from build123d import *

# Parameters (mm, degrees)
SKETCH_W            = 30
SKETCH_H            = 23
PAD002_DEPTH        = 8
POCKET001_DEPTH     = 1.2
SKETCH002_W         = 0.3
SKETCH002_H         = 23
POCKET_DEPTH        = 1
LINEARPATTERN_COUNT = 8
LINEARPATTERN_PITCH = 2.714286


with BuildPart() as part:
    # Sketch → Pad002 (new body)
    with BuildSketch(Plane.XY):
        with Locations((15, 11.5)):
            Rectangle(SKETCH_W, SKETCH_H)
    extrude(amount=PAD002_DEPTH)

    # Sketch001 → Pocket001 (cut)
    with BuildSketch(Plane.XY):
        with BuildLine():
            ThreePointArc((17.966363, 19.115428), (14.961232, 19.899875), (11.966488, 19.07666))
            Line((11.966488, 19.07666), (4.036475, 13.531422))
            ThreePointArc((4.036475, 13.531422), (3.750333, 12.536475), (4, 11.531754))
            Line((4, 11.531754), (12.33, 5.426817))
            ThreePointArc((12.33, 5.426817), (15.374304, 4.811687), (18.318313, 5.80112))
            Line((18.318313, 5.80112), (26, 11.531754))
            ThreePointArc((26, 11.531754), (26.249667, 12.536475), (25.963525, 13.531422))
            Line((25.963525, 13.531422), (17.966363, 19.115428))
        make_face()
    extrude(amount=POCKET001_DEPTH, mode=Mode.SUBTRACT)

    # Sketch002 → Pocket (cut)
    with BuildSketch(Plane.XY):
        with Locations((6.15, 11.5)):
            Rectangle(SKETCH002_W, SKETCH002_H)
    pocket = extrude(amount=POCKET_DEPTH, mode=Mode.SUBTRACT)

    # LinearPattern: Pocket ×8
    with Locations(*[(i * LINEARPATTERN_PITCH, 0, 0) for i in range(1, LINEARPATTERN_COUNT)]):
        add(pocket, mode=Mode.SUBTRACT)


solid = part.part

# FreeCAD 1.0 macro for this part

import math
import FreeCAD as App
import Part
import Sketcher
from FreeCAD import Vector
Q = App.Units.Quantity

doc = App.newDocument("Part")
body = doc.addObject("PartDesign::Body", "Body")

sketch1 = body.newObject("Sketcher::SketchObject", "Sketch")
sketch1.AttachmentSupport = (doc.getObject("XY_Plane"), [""])
sketch1.MapMode = "FlatFace"
sketch1.addGeometry([
    Part.LineSegment(Vector(0, 23, 0), Vector(0, 0, 0)),
    Part.LineSegment(Vector(0, 0, 0), Vector(30, 0, 0)),
    Part.LineSegment(Vector(30, 0, 0), Vector(30, 23, 0)),
    Part.LineSegment(Vector(30, 23, 0), Vector(0, 23, 0)),
], False)
sketch1.addConstraint([
    Sketcher.Constraint("Coincident", 0, 2, 1, 1),
    Sketcher.Constraint("Coincident", 1, 2, 2, 1),
    Sketcher.Constraint("Coincident", 2, 2, 3, 1),
    Sketcher.Constraint("Coincident", 3, 2, 0, 1),
    Sketcher.Constraint("Vertical", 0),
    Sketcher.Constraint("Horizontal", 1),
    Sketcher.Constraint("Vertical", 2),
    Sketcher.Constraint("Horizontal", 3),
    Sketcher.Constraint("Coincident", 0, 2, -1, 1),
    Sketcher.Constraint("DistanceX", 1, 1, 1, 2, Q("30 mm")),
    Sketcher.Constraint("DistanceY", 0, 2, 0, 1, Q("23 mm")),
])
pad1 = body.newObject("PartDesign::Pad", "Pad")
pad1.Profile = sketch1
pad1.Length = 8

sketch2 = body.newObject("Sketcher::SketchObject", "Sketch001")
sketch2.AttachmentSupport = (doc.getObject("XY_Plane"), [""])
sketch2.MapMode = "FlatFace"
sketch2.addGeometry([
    Part.ArcOfCircle(Part.Circle(Vector(15, 13.900001, 0), Vector(0, 0, 1), 5.999999), math.radians(60.370204), math.radians(120.370216)),
    Part.LineSegment(Vector(11.966488, 19.07666, 0), Vector(4.036475, 13.531422, 0)),
    Part.ArcOfCircle(Part.Circle(Vector(5.750002, 12.5, 0), Vector(0, 0, 1), 2.000002), math.radians(148.955033), math.radians(208.954988)),
    Part.LineSegment(Vector(4, 11.531754, 0), Vector(12.33, 5.426817, 0)),
    Part.ArcOfCircle(Part.Circle(Vector(15, 10.800002, 0), Vector(0, 0, 1), 6.000001), math.radians(-116.423337), math.radians(-56.423357)),
    Part.LineSegment(Vector(18.318313, 5.80112, 0), Vector(26, 11.531754, 0)),
    Part.ArcOfCircle(Part.Circle(Vector(24.249998, 12.5, 0), Vector(0, 0, 1), 2.000002), math.radians(-28.954988), math.radians(31.044967)),
    Part.LineSegment(Vector(25.963525, 13.531422, 0), Vector(17.966363, 19.115428, 0)),
], False)
sketch2.addConstraint([
    Sketcher.Constraint("Coincident", 0, 2, 1, 1),
    Sketcher.Constraint("Coincident", 1, 2, 2, 1),
    Sketcher.Constraint("Coincident", 2, 2, 3, 1),
    Sketcher.Constraint("Coincident", 3, 2, 4, 1),
    Sketcher.Constraint("Coincident", 4, 2, 5, 1),
    Sketcher.Constraint("Coincident", 5, 2, 6, 1),
    Sketcher.Constraint("Coincident", 6, 2, 7, 1),
    Sketcher.Constraint("Coincident", 7, 2, 0, 1),
    Sketcher.Constraint("Equal", 2, 6),
    Sketcher.Constraint("Horizontal", 2, 3, 6, 3),
    Sketcher.Constraint("Horizontal", 2, 2, 5, 2),
    Sketcher.Constraint("Horizontal", 1, 2, 6, 2),
    Sketcher.Constraint("Vertical", 0, 3, 4, 3),
    Sketcher.Constraint("Radius", 0, Q("5.999999 mm")),
    Sketcher.Constraint("Radius", 2, Q("2.000002 mm")),
    Sketcher.Constraint("Radius", 4, Q("6.000001 mm")),
    Sketcher.Constraint("DistanceX", -1, 1, 0, 3, Q("15 mm")),
    Sketcher.Constraint("DistanceX", -1, 1, 2, 2, Q("4 mm")),
    Sketcher.Constraint("DistanceX", -1, 1, 5, 2, Q("26 mm")),
    Sketcher.Constraint("DistanceY", -1, 1, 0, 3, Q("13.900001 mm")),
    Sketcher.Constraint("DistanceY", -1, 1, 2, 3, Q("12.5 mm")),
    Sketcher.Constraint("DistanceY", -1, 1, 4, 3, Q("10.800002 mm")),
    Sketcher.Constraint("DistanceX", -1, 1, 3, 2, Q("12.33 mm")),
    Sketcher.Constraint("DistanceX", 2, 3, 4, 3, Q("9.249998 mm")),
    Sketcher.Constraint("DistanceY", 4, 2, 6, 2, Q("7.730302 mm")),
    Sketcher.Constraint("Distance", 5, Q("9.583761 mm")),
    Sketcher.Constraint("DistanceX", -1, 1, 0, 2, Q("11.966488 mm")),
    Sketcher.Constraint("DistanceY", -1, 1, 7, 2, Q("19.115428 mm")),
])
pocket1 = body.newObject("PartDesign::Pocket", "Pocket")
pocket1.Profile = sketch2
pocket1.Length = 1.2
pocket1.Reversed = True

sketch3 = body.newObject("Sketcher::SketchObject", "Sketch002")
sketch3.AttachmentSupport = (doc.getObject("XY_Plane"), [""])
sketch3.MapMode = "FlatFace"
sketch3.addGeometry([
    Part.LineSegment(Vector(6, 23, 0), Vector(6, 0, 0)),
    Part.LineSegment(Vector(6, 0, 0), Vector(6.3, 0, 0)),
    Part.LineSegment(Vector(6.3, 0, 0), Vector(6.3, 23, 0)),
    Part.LineSegment(Vector(6.3, 23, 0), Vector(6, 23, 0)),
], False)
sketch3.addConstraint([
    Sketcher.Constraint("Coincident", 0, 2, 1, 1),
    Sketcher.Constraint("Coincident", 1, 2, 2, 1),
    Sketcher.Constraint("Coincident", 2, 2, 3, 1),
    Sketcher.Constraint("Coincident", 3, 2, 0, 1),
    Sketcher.Constraint("Vertical", 0),
    Sketcher.Constraint("Horizontal", 1),
    Sketcher.Constraint("Vertical", 2),
    Sketcher.Constraint("Horizontal", 3),
    Sketcher.Constraint("PointOnObject", 0, 2, -1),
    Sketcher.Constraint("DistanceY", 0, 2, 0, 1, Q("23 mm")),
    Sketcher.Constraint("DistanceX", 1, 1, 1, 2, Q("0.3 mm")),
    Sketcher.Constraint("DistanceX", -1, 1, 0, 2, Q("6 mm")),
])
pocket2 = body.newObject("PartDesign::Pocket", "Pocket001")
pocket2.Profile = sketch3
pocket2.Length = 1
pocket2.Reversed = True
doc.recompute()

linearpattern = body.newObject("PartDesign::LinearPattern", "LinearPattern")
linearpattern.Originals = [pocket2]
linearpattern.Direction = (doc.getObject("X_Axis"), [""])
linearpattern.Mode = "offset"
linearpattern.Offset = 2.714286
linearpattern.Occurrences = 8
body.Tip = linearpattern

doc.recompute()
